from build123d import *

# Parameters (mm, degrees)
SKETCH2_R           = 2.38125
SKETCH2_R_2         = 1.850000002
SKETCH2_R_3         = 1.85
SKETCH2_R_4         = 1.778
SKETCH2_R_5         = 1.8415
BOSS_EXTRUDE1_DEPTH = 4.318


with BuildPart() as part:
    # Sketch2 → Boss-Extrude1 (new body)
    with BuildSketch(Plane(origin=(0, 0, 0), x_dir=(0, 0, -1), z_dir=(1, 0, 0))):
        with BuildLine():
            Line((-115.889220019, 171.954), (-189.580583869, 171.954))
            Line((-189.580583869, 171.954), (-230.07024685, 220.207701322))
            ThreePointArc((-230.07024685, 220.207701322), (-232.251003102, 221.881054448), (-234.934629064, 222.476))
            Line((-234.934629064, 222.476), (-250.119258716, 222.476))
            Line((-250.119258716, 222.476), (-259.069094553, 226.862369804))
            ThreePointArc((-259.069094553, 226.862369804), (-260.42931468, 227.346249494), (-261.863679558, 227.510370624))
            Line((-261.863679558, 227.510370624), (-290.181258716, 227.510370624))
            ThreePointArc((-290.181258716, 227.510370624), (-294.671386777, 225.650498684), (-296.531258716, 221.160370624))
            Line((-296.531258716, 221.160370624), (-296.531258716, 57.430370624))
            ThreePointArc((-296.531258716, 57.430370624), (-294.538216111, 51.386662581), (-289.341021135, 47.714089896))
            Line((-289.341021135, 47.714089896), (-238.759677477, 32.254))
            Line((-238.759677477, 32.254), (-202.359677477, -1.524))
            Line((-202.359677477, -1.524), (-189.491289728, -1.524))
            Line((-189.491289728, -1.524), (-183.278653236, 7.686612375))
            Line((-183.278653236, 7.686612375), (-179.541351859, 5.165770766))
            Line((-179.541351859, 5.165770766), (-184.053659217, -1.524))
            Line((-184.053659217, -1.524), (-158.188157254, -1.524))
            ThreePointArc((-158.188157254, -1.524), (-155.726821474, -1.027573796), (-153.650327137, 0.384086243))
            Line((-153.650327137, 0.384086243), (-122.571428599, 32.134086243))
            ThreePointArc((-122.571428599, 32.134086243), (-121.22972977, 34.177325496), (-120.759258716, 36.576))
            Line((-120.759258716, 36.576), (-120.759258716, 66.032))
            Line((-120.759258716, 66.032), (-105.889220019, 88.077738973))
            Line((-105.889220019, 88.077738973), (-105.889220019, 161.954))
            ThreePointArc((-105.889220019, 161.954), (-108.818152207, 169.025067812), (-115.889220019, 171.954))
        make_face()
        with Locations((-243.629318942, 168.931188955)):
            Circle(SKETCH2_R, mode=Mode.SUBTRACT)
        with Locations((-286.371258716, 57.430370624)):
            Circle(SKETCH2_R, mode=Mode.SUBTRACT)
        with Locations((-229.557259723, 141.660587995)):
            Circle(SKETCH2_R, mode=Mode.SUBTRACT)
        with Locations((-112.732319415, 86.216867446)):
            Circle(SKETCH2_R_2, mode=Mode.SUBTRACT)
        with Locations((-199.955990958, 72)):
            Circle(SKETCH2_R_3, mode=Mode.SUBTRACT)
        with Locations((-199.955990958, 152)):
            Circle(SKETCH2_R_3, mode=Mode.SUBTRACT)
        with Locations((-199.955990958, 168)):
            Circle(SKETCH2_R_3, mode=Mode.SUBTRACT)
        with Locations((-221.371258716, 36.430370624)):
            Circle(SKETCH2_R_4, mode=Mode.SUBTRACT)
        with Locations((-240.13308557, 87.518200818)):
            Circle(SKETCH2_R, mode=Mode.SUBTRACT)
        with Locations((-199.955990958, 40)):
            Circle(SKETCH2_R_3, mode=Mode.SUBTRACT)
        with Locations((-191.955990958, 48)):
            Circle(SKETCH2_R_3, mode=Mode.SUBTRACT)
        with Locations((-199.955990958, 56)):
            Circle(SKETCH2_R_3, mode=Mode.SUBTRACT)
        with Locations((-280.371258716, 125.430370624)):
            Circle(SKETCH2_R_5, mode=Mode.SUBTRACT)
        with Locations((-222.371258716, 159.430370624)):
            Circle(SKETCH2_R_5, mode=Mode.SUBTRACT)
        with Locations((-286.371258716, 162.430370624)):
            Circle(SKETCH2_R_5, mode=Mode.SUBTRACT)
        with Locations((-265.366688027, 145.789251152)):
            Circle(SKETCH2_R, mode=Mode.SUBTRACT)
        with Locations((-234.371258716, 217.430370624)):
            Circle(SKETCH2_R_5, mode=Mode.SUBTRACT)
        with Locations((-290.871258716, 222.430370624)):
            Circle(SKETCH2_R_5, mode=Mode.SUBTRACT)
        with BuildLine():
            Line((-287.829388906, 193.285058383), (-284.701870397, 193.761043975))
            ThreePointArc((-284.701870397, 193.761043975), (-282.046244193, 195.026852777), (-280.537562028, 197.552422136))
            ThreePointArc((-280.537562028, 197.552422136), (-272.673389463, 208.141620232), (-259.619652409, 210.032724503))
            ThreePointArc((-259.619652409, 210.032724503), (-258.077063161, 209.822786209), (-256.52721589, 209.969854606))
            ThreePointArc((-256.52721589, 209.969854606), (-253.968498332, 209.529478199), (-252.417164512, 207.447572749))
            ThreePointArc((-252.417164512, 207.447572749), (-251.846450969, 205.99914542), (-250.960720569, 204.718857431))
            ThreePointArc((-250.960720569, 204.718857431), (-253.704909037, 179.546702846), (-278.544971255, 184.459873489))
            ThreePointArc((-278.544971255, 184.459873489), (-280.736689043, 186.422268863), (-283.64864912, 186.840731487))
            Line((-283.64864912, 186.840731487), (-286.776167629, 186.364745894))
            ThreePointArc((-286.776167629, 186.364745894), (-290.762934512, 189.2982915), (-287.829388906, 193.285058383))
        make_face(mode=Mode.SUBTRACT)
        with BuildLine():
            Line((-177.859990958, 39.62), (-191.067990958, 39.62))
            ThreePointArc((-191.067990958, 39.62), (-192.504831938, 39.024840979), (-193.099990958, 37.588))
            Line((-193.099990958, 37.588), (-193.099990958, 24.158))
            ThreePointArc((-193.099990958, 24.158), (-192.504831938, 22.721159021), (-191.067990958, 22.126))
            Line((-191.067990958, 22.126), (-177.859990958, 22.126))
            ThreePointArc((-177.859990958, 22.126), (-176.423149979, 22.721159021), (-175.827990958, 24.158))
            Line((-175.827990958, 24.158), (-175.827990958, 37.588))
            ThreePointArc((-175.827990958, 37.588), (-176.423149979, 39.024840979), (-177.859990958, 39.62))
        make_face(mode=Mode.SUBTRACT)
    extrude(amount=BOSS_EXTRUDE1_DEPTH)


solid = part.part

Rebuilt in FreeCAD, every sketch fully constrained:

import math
import FreeCAD as App
import Part
import Sketcher
from FreeCAD import Vector
Q = App.Units.Quantity

doc = App.newDocument("Part")
body = doc.addObject("PartDesign::Body", "Body")

sketch1 = doc.addObject("Sketcher::SketchObject", "Sketch")
body.addObject(sketch1)
sketch1.AttachmentSupport = (doc.YZ_Plane, [""])
sketch1.MapMode = "FlatFace"
sketch1.addGeometry([
    Part.LineSegment(Vector(172, 115.9, 0), Vector(172, 189.6, 0)),
    Part.LineSegment(Vector(172, 189.6, 0), Vector(220.2, 230.1, 0)),
    Part.ArcOfCircle(Part.Circle(Vector(216.1, 234.9, 0), Vector(0, 0, 1), 6.3), math.radians(-50), math.radians(0)),
    Part.LineSegment(Vector(222.5, 234.9, 0), Vector(222.5, 250.1, 0)),
    Part.LineSegment(Vector(222.5, 250.1, 0), Vector(226.9, 259.1, 0)),
    Part.ArcOfCircle(Part.Circle(Vector(221.2, 261.9, 0), Vector(0, 0, 1), 6.4), math.radians(-26), math.radians(0)),
    Part.LineSegment(Vector(227.5, 261.9, 0), Vector(227.5, 290.2, 0)),
    Part.ArcOfCircle(Part.Circle(Vector(221.2, 290.2, 0), Vector(0, 0, 1), 6.3), math.radians(0), math.radians(90)),
    Part.LineSegment(Vector(221.2, 296.5, 0), Vector(57.4, 296.5, 0)),
    Part.ArcOfCircle(Part.Circle(Vector(57.4, 286.4, 0), Vector(0, 0, 1), 10.2), math.radians(90), math.radians(163)),
    Part.LineSegment(Vector(47.7, 289.3, 0), Vector(32.3, 238.8, 0)),
    Part.LineSegment(Vector(32.3, 238.8, 0), Vector(-1.5, 202.4, 0)),
    Part.LineSegment(Vector(-1.5, 202.4, 0), Vector(-1.5, 189.5, 0)),
    Part.LineSegment(Vector(-1.5, 189.5, 0), Vector(7.7, 183.3, 0)),
    Part.LineSegment(Vector(7.7, 183.3, 0), Vector(5.2, 179.5, 0)),
    Part.LineSegment(Vector(5.2, 179.5, 0), Vector(-1.5, 184.1, 0)),
    Part.LineSegment(Vector(-1.5, 184.1, 0), Vector(-1.5, 158.2, 0)),
    Part.ArcOfCircle(Part.Circle(Vector(4.8, 158.2, 0), Vector(0, 0, 1), 6.3), math.radians(180), math.radians(226)),
    Part.LineSegment(Vector(0.4, 153.7, 0), Vector(32.1, 122.6, 0)),
    Part.ArcOfCircle(Part.Circle(Vector(36.6, 127.1, 0), Vector(0, 0, 1), 6.3), math.radians(-134), math.radians(-90)),
    Part.LineSegment(Vector(36.6, 120.8, 0), Vector(66, 120.8, 0)),
    Part.LineSegment(Vector(66, 120.8, 0), Vector(88.1, 105.9, 0)),
    Part.LineSegment(Vector(88.1, 105.9, 0), Vector(162, 105.9, 0)),
    Part.ArcOfCircle(Part.Circle(Vector(162, 115.9, 0), Vector(0, 0, 1), 10), math.radians(-90), math.radians(0)),
    Part.Circle(Vector(57.4, 286.4, 0), Vector(0, 0, 1), 2.4),
    Part.Circle(Vector(36.4, 221.4, 0), Vector(0, 0, 1), 1.8),
    Part.Circle(Vector(87.5, 240.1, 0), Vector(0, 0, 1), 2.4),
    Part.LineSegment(Vector(39.6, 191.1, 0), Vector(39.6, 177.9, 0)),
    Part.ArcOfCircle(Part.Circle(Vector(37.6, 177.9, 0), Vector(0, 0, 1), 2), math.radians(-90), math.radians(0)),
    Part.LineSegment(Vector(37.6, 175.8, 0), Vector(24.2, 175.8, 0)),
    Part.ArcOfCircle(Part.Circle(Vector(24.2, 177.9, 0), Vector(0, 0, 1), 2), math.radians(-180), math.radians(-90)),
    Part.LineSegment(Vector(22.1, 177.9, 0), Vector(22.1, 191.1, 0)),
    Part.ArcOfCircle(Part.Circle(Vector(24.2, 191.1, 0), Vector(0, 0, 1), 2), math.radians(90), math.radians(180)),
    Part.LineSegment(Vector(24.2, 193.1, 0), Vector(37.6, 193.1, 0)),
    Part.ArcOfCircle(Part.Circle(Vector(37.6, 191.1, 0), Vector(0, 0, 1), 2), math.radians(0), math.radians(90)),
    Part.Circle(Vector(40, 200, 0), Vector(0, 0, 1), 1.9),
    Part.Circle(Vector(48, 192, 0), Vector(0, 0, 1), 1.9),
    Part.Circle(Vector(56, 200, 0), Vector(0, 0, 1), 1.9),
    Part.Circle(Vector(72, 200, 0), Vector(0, 0, 1), 1.9),
    Part.Circle(Vector(86.2, 112.7, 0), Vector(0, 0, 1), 1.9),
    Part.Circle(Vector(125.4, 280.4, 0), Vector(0, 0, 1), 1.8),
    Part.Circle(Vector(145.8, 265.4, 0), Vector(0, 0, 1), 2.4),
    Part.Circle(Vector(162.4, 286.4, 0), Vector(0, 0, 1), 1.8),
    Part.Circle(Vector(141.7, 229.6, 0), Vector(0, 0, 1), 2.4),
    Part.Circle(Vector(168.9, 243.6, 0), Vector(0, 0, 1), 2.4),
    Part.Circle(Vector(159.4, 222.4, 0), Vector(0, 0, 1), 1.8),
    Part.ArcOfCircle(Part.Circle(Vector(189.8, 287.3, 0), Vector(0, 0, 1), 3.5), math.radians(9), math.radians(189)),
    Part.LineSegment(Vector(193.3, 287.8, 0), Vector(193.8, 284.7, 0)),
    Part.ArcOfCircle(Part.Circle(Vector(198.8, 285.5, 0), Vector(0, 0, 1), 5.1), math.radians(-171), math.radians(-104)),
    Part.ArcOfCircle(Part.Circle(Vector(193.4, 263.9, 0), Vector(0, 0, 1), 17.2), math.radians(-14), math.radians(76)),
    Part.ArcOfCircle(Part.Circle(Vector(216.6, 257.9, 0), Vector(0, 0, 1), 6.8), math.radians(166), math.radians(192)),
    Part.ArcOfCircle(Part.Circle(Vector(206.5, 255.8, 0), Vector(0, 0, 1), 3.5), math.radians(-75), math.radians(12)),
    Part.ArcOfCircle(Part.Circle(Vector(209.2, 245.9, 0), Vector(0, 0, 1), 6.8), math.radians(105), math.radians(131)),
    Part.ArcOfCircle(Part.Circle(Vector(193.4, 263.9, 0), Vector(0, 0, 1), 17.2), math.radians(121), math.radians(311)),
    Part.ArcOfCircle(Part.Circle(Vector(181.8, 282.9, 0), Vector(0, 0, 1), 5.1), math.radians(-59), math.radians(9)),
    Part.LineSegment(Vector(186.8, 283.6, 0), Vector(186.4, 286.8, 0)),
    Part.Circle(Vector(222.4, 290.9, 0), Vector(0, 0, 1), 1.8),
    Part.Circle(Vector(217.4, 234.4, 0), Vector(0, 0, 1), 1.8),
    Part.Circle(Vector(152, 200, 0), Vector(0, 0, 1), 1.9),
    Part.Circle(Vector(168, 200, 0), Vector(0, 0, 1), 1.9),
], False)
sketch1.addConstraint([
    Sketcher.Constraint("Coincident", 0, 2, 1, 1),
    Sketcher.Constraint("Tangent", 1, 2, 2, 1),
    Sketcher.Constraint("Tangent", 2, 2, 3, 1),
    Sketcher.Constraint("Coincident", 3, 2, 4, 1),
    Sketcher.Constraint("Tangent", 4, 2, 5, 1),
    Sketcher.Constraint("Tangent", 5, 2, 6, 1),
    Sketcher.Constraint("Tangent", 6, 2, 7, 1),
    Sketcher.Constraint("Tangent", 7, 2, 8, 1),
    Sketcher.Constraint("Tangent", 8, 2, 9, 1),
    Sketcher.Constraint("Tangent", 9, 2, 10, 1),
    Sketcher.Constraint("Coincident", 10, 2, 11, 1),
    Sketcher.Constraint("Coincident", 11, 2, 12, 1),
    Sketcher.Constraint("Coincident", 12, 2, 13, 1),
    Sketcher.Constraint("Coincident", 13, 2, 14, 1),
    Sketcher.Constraint("Coincident", 14, 2, 15, 1),
    Sketcher.Constraint("Coincident", 15, 2, 16, 1),
    Sketcher.Constraint("Tangent", 16, 2, 17, 1),
    Sketcher.Constraint("Tangent", 17, 2, 18, 1),
    Sketcher.Constraint("Tangent", 18, 2, 19, 1),
    Sketcher.Constraint("Tangent", 19, 2, 20, 1),
    Sketcher.Constraint("Coincident", 20, 2, 21, 1),
    Sketcher.Constraint("Coincident", 21, 2, 22, 1),
    Sketcher.Constraint("Tangent", 22, 2, 23, 1),
    Sketcher.Constraint("Tangent", 23, 2, 0, 1),
    Sketcher.Constraint("Tangent", 27, 2, 28, 2),
    Sketcher.Constraint("Tangent", 28, 1, 29, 1),
    Sketcher.Constraint("Tangent", 29, 2, 30, 2),
    Sketcher.Constraint("Tangent", 30, 1, 31, 1),
    Sketcher.Constraint("Tangent", 31, 2, 32, 2),
    Sketcher.Constraint("Tangent", 32, 1, 33, 1),
    Sketcher.Constraint("Tangent", 33, 2, 34, 2),
    Sketcher.Constraint("Tangent", 34, 1, 27, 1),
    Sketcher.Constraint("Tangent", 46, 1, 47, 1),
    Sketcher.Constraint("Tangent", 47, 2, 48, 1),
    Sketcher.Constraint("Tangent", 48, 2, 49, 2),
    Sketcher.Constraint("Tangent", 49, 1, 50, 1),
    Sketcher.Constraint("Tangent", 50, 2, 51, 2),
    Sketcher.Constraint("Tangent", 51, 1, 52, 1),
    Sketcher.Constraint("Tangent", 52, 2, 53, 2),
    Sketcher.Constraint("Tangent", 53, 1, 54, 1),
    Sketcher.Constraint("Tangent", 54, 2, 55, 1),
    Sketcher.Constraint("Tangent", 55, 2, 46, 2),
    Sketcher.Constraint("Vertical", 0),
    Sketcher.Constraint("Vertical", 3),
    Sketcher.Constraint("Vertical", 6),
    Sketcher.Constraint("Horizontal", 8),
    Sketcher.Constraint("Vertical", 12),
    Sketcher.Constraint("Vertical", 16),
    Sketcher.Constraint("Horizontal", 20),
    Sketcher.Constraint("Horizontal", 22),
    Sketcher.Constraint("Vertical", 27),
    Sketcher.Constraint("Horizontal", 29),
    Sketcher.Constraint("Vertical", 31),
    Sketcher.Constraint("Horizontal", 33),
    Sketcher.Constraint("Coincident", 24, 3, 9, 3),
    Sketcher.Constraint("Coincident", 53, 3, 49, 3),
    Sketcher.Constraint("Equal", 2, 5),
    Sketcher.Constraint("Equal", 5, 7),
    Sketcher.Constraint("Equal", 7, 17),
    Sketcher.Constraint("Equal", 17, 19),
    Sketcher.Constraint("Equal", 24, 26),
    Sketcher.Constraint("Equal", 28, 30),
    Sketcher.Constraint("Equal", 30, 32),
    Sketcher.Constraint("Equal", 32, 34),
    Sketcher.Constraint("Equal", 35, 36),
    Sketcher.Constraint("Equal", 36, 37),
    Sketcher.Constraint("Equal", 37, 38),
    Sketcher.Constraint("Equal", 38, 39),
    Sketcher.Constraint("Equal", 26, 41),
    Sketcher.Constraint("Equal", 40, 42),
    Sketcher.Constraint("Equal", 41, 43),
    Sketcher.Constraint("Equal", 43, 44),
    Sketcher.Constraint("Equal", 42, 45),
    Sketcher.Constraint("Equal", 46, 51),
    Sketcher.Constraint("Equal", 50, 52),
    Sketcher.Constraint("Equal", 49, 53),
    Sketcher.Constraint("Equal", 48, 54),
    Sketcher.Constraint("Equal", 45, 56),
    Sketcher.Constraint("Equal", 56, 57),
    Sketcher.Constraint("Equal", 39, 58),
    Sketcher.Constraint("Equal", 58, 59),
    Sketcher.Constraint("Perpendicular", 13, 14),
    Sketcher.Constraint("Perpendicular", 14, 15),
    Sketcher.Constraint("Parallel", 15, 21),
    Sketcher.Constraint("Parallel", 47, 55),
    Sketcher.Constraint("Horizontal", 35, 3, 37, 3),
    Sketcher.Constraint("Horizontal", 37, 3, 38, 3),
    Sketcher.Constraint("Horizontal", 24, 3, 42, 3),
    Sketcher.Constraint("Horizontal", 38, 3, 58, 3),
    Sketcher.Constraint("Horizontal", 58, 3, 59, 3),
    Sketcher.Constraint("Vertical", 12, 2, 15, 2),
    Sketcher.Constraint("Equal", 47, 55),
    Sketcher.Constraint("Radius", 9, Q("0.4 in")),
    Sketcher.Constraint("Radius", 48, Q("0.2 in")),
    Sketcher.Constraint("Diameter", 25, Q("0.14 in")),
    Sketcher.Constraint("Radius", 2, Q("0.25 in")),
    Sketcher.Constraint("Radius", 28, Q("0.08 in")),
    Sketcher.Constraint("Diameter", 24, Q("0.1875 in")),
    Sketcher.Constraint("Diameter", 40, Q("0.145 in")),
    Sketcher.Constraint("Angle", 1, Q("40 deg")),
    Sketcher.Constraint("Angle", 13, Q("-34 deg")),
    Sketcher.Constraint("DistanceY", 27, 2, 27, 1, Q("0.52 in")),
    Sketcher.Constraint("Diameter", 35, Q("3.7 mm")),
    Sketcher.Constraint("DistanceX", -1, 1, 17, 3, Q("0.19 in")),
    Sketcher.Constraint("DistanceX", -1, 1, 19, 3, Q("1.44 in")),
    Sketcher.Constraint("Radius", 23, Q("10 mm")),
    Sketcher.Constraint("Radius", 46, Q("3.5 mm")),
    Sketcher.Constraint("Radius", 49, Q("17.17675 mm")),
    Sketcher.Constraint("Radius", 50, Q("6.787422 mm")),
    Sketcher.Constraint("DistanceX", 8, 2, 8, 1, Q("163.73 mm")),
    Sketcher.Constraint("DistanceX", 20, 1, 20, 2, Q("29.456 mm")),
    Sketcher.Constraint("DistanceX", 29, 2, 29, 1, Q("13.43 mm")),
    Sketcher.Constraint("DistanceY", 16, 2, 16, 1, Q("25.865502 mm")),
    Sketcher.Constraint("Distance", 14, Q("4.508 mm")),
    Sketcher.Constraint("DistanceX", 22, 1, 22, 2, Q("73.876261 mm")),
    Sketcher.Constraint("DistanceY", 3, 1, 3, 2, Q("15.18463 mm")),
    Sketcher.Constraint("DistanceY", 6, 1, 6, 2, Q("28.317579 mm")),
    Sketcher.Constraint("DistanceX", -1, 1, 2, 3, Q("216.126 mm")),
    Sketcher.Constraint("DistanceX", -1, 1, 23, 3, Q("161.954 mm")),
    Sketcher.Constraint("DistanceX", -1, 1, 26, 3, Q("87.518201 mm")),
    Sketcher.Constraint("DistanceX", -1, 1, 28, 3, Q("37.588 mm")),
    Sketcher.Constraint("DistanceX", -1, 1, 35, 3, Q("40 mm")),
    Sketcher.Constraint("DistanceX", -1, 1, 36, 3, Q("48 mm")),
    Sketcher.Constraint("DistanceX", -1, 1, 37, 3, Q("56 mm")),
    Sketcher.Constraint("DistanceX", -1, 1, 38, 3, Q("72 mm")),
    Sketcher.Constraint("DistanceY", -1, 1, 50, 3, Q("257.939102 mm")),
    Sketcher.Constraint("DistanceX", -1, 1, 58, 3, Q("152 mm")),
    Sketcher.Constraint("DistanceX", -1, 1, 59, 3, Q("168 mm")),
    Sketcher.Constraint("DistanceX", -1, 1, 10, 2, Q("32.254 mm")),
    Sketcher.Constraint("Distance", 15, Q("8.069322 mm")),
    Sketcher.Constraint("Distance", 47, Q("3.163532 mm")),
    Sketcher.Constraint("DistanceY", 0, 1, 0, 2, Q("73.691364 mm")),
    Sketcher.Constraint("DistanceY", 12, 2, 12, 1, Q("12.868388 mm")),
    Sketcher.Constraint("DistanceY", -1, 1, 2, 3, Q("234.934629 mm")),
    Sketcher.Constraint("DistanceX", -1, 1, 5, 3, Q("221.160371 mm")),
    Sketcher.Constraint("DistanceY", -1, 1, 5, 3, Q("261.86368 mm")),
    Sketcher.Constraint("DistanceX", -1, 1, 25, 3, Q("36.430371 mm")),
    Sketcher.Constraint("DistanceY", -1, 1, 25, 3, Q("221.371259 mm")),
    Sketcher.Constraint("DistanceY", -1, 1, 28, 3, Q("177.859991 mm")),
    Sketcher.Constraint("DistanceY", -1, 1, 35, 3, Q("199.955991 mm")),
    Sketcher.Constraint("DistanceY", -1, 1, 36, 3, Q("191.955991 mm")),
    Sketcher.Constraint("DistanceY", -1, 1, 39, 3, Q("112.732319 mm")),
    Sketcher.Constraint("DistanceX", -1, 1, 40, 3, Q("125.430371 mm")),
    Sketcher.Constraint("DistanceY", -1, 1, 40, 3, Q("280.371259 mm")),
    Sketcher.Constraint("DistanceX", -1, 1, 41, 3, Q("145.789251 mm")),
    Sketcher.Constraint("DistanceY", -1, 1, 41, 3, Q("265.366688 mm")),
    Sketcher.Constraint("DistanceX", -1, 1, 42, 3, Q("162.430371 mm")),
    Sketcher.Constraint("DistanceY", -1, 1, 43, 3, Q("229.55726 mm")),
    Sketcher.Constraint("DistanceX", -1, 1, 44, 3, Q("168.931189 mm")),
    Sketcher.Constraint("DistanceY", -1, 1, 44, 3, Q("243.629319 mm")),
    Sketcher.Constraint("DistanceX", -1, 1, 45, 3, Q("159.430371 mm")),
    Sketcher.Constraint("DistanceY", -1, 1, 45, 3, Q("222.371259 mm")),
    Sketcher.Constraint("DistanceY", -1, 1, 46, 3, Q("287.302778 mm")),
    Sketcher.Constraint("DistanceY", -1, 1, 48, 3, Q("285.466208 mm")),
    Sketcher.Constraint("DistanceX", -1, 1, 49, 3, Q("193.390808 mm")),
    Sketcher.Constraint("DistanceY", -1, 1, 52, 3, Q("245.858579 mm")),
    Sketcher.Constraint("DistanceX", -1, 1, 56, 3, Q("222.430371 mm")),
    Sketcher.Constraint("DistanceY", -1, 1, 56, 3, Q("290.871259 mm")),
    Sketcher.Constraint("DistanceX", -1, 1, 57, 3, Q("217.430371 mm")),
    Sketcher.Constraint("DistanceY", -1, 1, 57, 3, Q("234.371259 mm")),
    Sketcher.Constraint("DistanceX", -1, 1, 9, 2, Q("47.71409 mm")),
    Sketcher.Constraint("DistanceY", -1, 1, 12, 2, Q("189.49129 mm")),
    Sketcher.Constraint("DistanceY", -1, 1, 26, 3, Q("240.133086 mm")),
    Sketcher.Constraint("DistanceX", -1, 1, 39, 3, Q("86.216867 mm")),
    Sketcher.Constraint("DistanceX", -1, 1, 43, 3, Q("141.660588 mm")),
])
pad1 = doc.addObject("PartDesign::Pad", "Pad")
body.addObject(pad1)
pad1.Profile = sketch1
pad1.Length = Q("0.17 in")

doc.recompute()
